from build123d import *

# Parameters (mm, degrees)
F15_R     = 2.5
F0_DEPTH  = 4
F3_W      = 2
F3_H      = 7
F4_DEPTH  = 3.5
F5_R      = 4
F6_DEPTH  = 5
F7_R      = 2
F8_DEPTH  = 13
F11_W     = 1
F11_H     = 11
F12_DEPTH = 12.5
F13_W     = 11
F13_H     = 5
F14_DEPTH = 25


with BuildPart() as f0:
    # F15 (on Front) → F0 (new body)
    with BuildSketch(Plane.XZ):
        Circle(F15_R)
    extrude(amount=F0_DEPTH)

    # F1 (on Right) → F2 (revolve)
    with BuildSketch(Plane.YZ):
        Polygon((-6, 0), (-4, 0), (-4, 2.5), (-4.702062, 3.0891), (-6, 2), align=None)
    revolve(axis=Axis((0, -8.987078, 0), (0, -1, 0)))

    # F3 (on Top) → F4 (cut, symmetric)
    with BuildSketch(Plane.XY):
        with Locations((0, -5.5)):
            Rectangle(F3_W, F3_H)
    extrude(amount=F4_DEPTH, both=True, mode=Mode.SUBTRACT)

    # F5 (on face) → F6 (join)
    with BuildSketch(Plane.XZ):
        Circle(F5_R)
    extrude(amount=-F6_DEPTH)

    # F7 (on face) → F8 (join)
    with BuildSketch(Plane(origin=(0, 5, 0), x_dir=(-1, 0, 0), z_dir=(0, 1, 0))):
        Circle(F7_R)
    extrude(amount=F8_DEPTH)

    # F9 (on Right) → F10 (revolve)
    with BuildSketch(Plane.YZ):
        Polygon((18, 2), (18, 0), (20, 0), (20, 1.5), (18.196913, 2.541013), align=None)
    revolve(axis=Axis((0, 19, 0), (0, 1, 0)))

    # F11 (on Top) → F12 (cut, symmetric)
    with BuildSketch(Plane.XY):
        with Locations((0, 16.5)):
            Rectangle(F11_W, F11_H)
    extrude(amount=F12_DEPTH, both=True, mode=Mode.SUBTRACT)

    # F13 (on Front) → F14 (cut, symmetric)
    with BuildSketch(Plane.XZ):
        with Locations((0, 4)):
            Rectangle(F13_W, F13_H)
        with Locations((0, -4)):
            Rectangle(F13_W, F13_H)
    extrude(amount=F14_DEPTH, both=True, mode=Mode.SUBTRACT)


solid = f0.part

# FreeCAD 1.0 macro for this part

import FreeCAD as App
import Part
import Sketcher
Q = App.Units.Quantity


def add_polygon(sketch, points):
    """Adds a closed chain of lines whose ends are joined by coincident constraints."""
    first, n = sketch.GeometryCount, len(points)
    for a, b in zip(points, points[1:] + points[:1]):
        sketch.addGeometry(Part.LineSegment(App.Vector(*a, 0), App.Vector(*b, 0)), False)
    for i in range(n):
        sketch.addConstraint(Sketcher.Constraint("Coincident", first + i, 2, first + (i + 1) % n, 1))

doc = App.newDocument("Part")
body = doc.addObject("PartDesign::Body", "Body")

sketch1 = body.newObject("Sketcher::SketchObject", "Sketch")
sketch1.AttachmentSupport = (doc.getObject("XZ_Plane"), [""])
sketch1.MapMode = "FlatFace"
sketch1.addGeometry(Part.Circle(App.Vector(0, 0, 0), App.Vector(0, 0, 1), 2.5), False)
sketch1.addConstraint([
    Sketcher.Constraint("Coincident", 0, 3, -1, 1),
    Sketcher.Constraint("Diameter", 0, Q("5 mm")),
])
pad1 = body.newObject("PartDesign::Pad", "Pad")
pad1.Profile = sketch1
pad1.Length = 4

sketch2 = body.newObject("Sketcher::SketchObject", "Sketch001")
sketch2.AttachmentSupport = (doc.getObject("YZ_Plane"), [""])
sketch2.MapMode = "FlatFace"
add_polygon(sketch2, [(-6, 0), (-4, 0), (-4, 2.5), (-4.7, 3.1), (-6, 2)])
sketch2.addConstraint([
    Sketcher.Constraint("Horizontal", 0),
    Sketcher.Constraint("Vertical", 1),
    Sketcher.Constraint("Vertical", 4),
    Sketcher.Constraint("PointOnObject", 0, 2, -1),
    Sketcher.Constraint("Equal", 0, 4),
    Sketcher.Constraint("DistanceX", 0, 1, 0, 2, Q("2 mm")),
    Sketcher.Constraint("Angle", 2, Q("139.999998 deg")),
    Sketcher.Constraint("Angle", 3, Q("-139.999982 deg")),
    Sketcher.Constraint("DistanceY", 1, 1, 1, 2, Q("2.5 mm")),
    Sketcher.Constraint("DistanceX", 0, 2, -1, 1, Q("4 mm")),
])
revolution = body.newObject("PartDesign::Revolution", "Revolution")
revolution.Profile = sketch2
revolution.ReferenceAxis = (sketch2, ["H_Axis"])
revolution.Angle = 360

sketch3 = body.newObject("Sketcher::SketchObject", "Sketch002")
sketch3.AttachmentSupport = (doc.getObject("XY_Plane"), [""])
sketch3.MapMode = "FlatFace"
add_polygon(sketch3, [(-1, -2), (-1, -9), (1, -9), (1, -2)])
sketch3.addConstraint([
    Sketcher.Constraint("Vertical", 0),
    Sketcher.Constraint("Horizontal", 1),
    Sketcher.Constraint("Vertical", 2),
    Sketcher.Constraint("Horizontal", 3),
    Sketcher.Constraint("DistanceX", 1, 1, 1, 2, Q("2 mm")),
    Sketcher.Constraint("DistanceY", 0, 2, 0, 1, Q("7 mm")),
    Sketcher.Constraint("DistanceX", 0, 2, -1, 1, Q("1 mm")),
    Sketcher.Constraint("DistanceY", 0, 2, -1, 1, Q("9 mm")),
])
pocket1 = body.newObject("PartDesign::Pocket", "Pocket")
pocket1.Profile = sketch3
pocket1.Length = 7
pocket1.Midplane = True

sketch4 = body.newObject("Sketcher::SketchObject", "Sketch003")
sketch4.AttachmentSupport = (doc.getObject("XZ_Plane"), [""])
sketch4.MapMode = "FlatFace"
sketch4.addGeometry(Part.Circle(App.Vector(0, 0, 0), App.Vector(0, 0, 1), 4), False)
sketch4.addConstraint([
    Sketcher.Constraint("Coincident", 0, 3, -1, 1),
    Sketcher.Constraint("Diameter", 0, Q("8 mm")),
])
pad2 = body.newObject("PartDesign::Pad", "Pad001")
pad2.Profile = sketch4
pad2.Length = 5
pad2.Reversed = True

sketch5 = body.newObject("Sketcher::SketchObject", "Sketch004")
sketch5.AttachmentSupport = (doc.getObject("XZ_Plane"), [""])
sketch5.MapMode = "FlatFace"
sketch5.AttachmentOffset = App.Placement(App.Vector(0, 0, -5), App.Rotation())
sketch5.addGeometry(Part.Circle(App.Vector(0, 0, 0), App.Vector(0, 0, 1), 2), False)
sketch5.addConstraint([
    Sketcher.Constraint("Coincident", 0, 3, -1, 1),
    Sketcher.Constraint("Diameter", 0, Q("4 mm")),
])
pad3 = body.newObject("PartDesign::Pad", "Pad002")
pad3.Profile = sketch5
pad3.Length = 13
pad3.Reversed = True

sketch6 = body.newObject("Sketcher::SketchObject", "Sketch005")
sketch6.AttachmentSupport = (doc.getObject("YZ_Plane"), [""])
sketch6.MapMode = "FlatFace"
add_polygon(sketch6, [(18, 2), (18, 0), (20, 0), (20, 1.5), (18.2, 2.5)])
sketch6.addConstraint([
    Sketcher.Constraint("Vertical", 0),
    Sketcher.Constraint("Horizontal", 1),
    Sketcher.Constraint("Vertical", 2),
    Sketcher.Constraint("PointOnObject", 0, 2, -1),
    Sketcher.Constraint("Equal", 1, 0),
    Sketcher.Constraint("DistanceX", 1, 1, 1, 2, Q("2 mm")),
    Sketcher.Constraint("Angle", 3, Q("149.999994 deg")),
    Sketcher.Constraint("DistanceY", 2, 1, 2, 2, Q("1.5 mm")),
    Sketcher.Constraint("DistanceX", -1, 1, 0, 2, Q("18 mm")),
    Sketcher.Constraint("Distance", 3, Q("2.082026 mm")),
])
revolution2 = body.newObject("PartDesign::Revolution", "Revolution001")
revolution2.Profile = sketch6
revolution2.ReferenceAxis = (sketch6, ["H_Axis"])
revolution2.Angle = 360

sketch7 = body.newObject("Sketcher::SketchObject", "Sketch006")
sketch7.AttachmentSupport = (doc.getObject("XY_Plane"), [""])
sketch7.MapMode = "FlatFace"
add_polygon(sketch7, [(-0.5, 22), (-0.5, 11), (0.5, 11), (0.5, 22)])
sketch7.addConstraint([
    Sketcher.Constraint("Vertical", 0),
    Sketcher.Constraint("Horizontal", 1),
    Sketcher.Constraint("Vertical", 2),
    Sketcher.Constraint("Horizontal", 3),
    Sketcher.Constraint("DistanceX", 1, 1, 1, 2, Q("1 mm")),
    Sketcher.Constraint("DistanceY", 0, 2, 0, 1, Q("11 mm")),
    Sketcher.Constraint("DistanceY", -1, 1, 0, 2, Q("11 mm")),
    Sketcher.Constraint("DistanceX", 0, 2, -1, 1, Q("0.5 mm")),
])
pocket2 = body.newObject("PartDesign::Pocket", "Pocket001")
pocket2.Profile = sketch7
pocket2.Length = 25
pocket2.Midplane = True

sketch8 = body.newObject("Sketcher::SketchObject", "Sketch007")
sketch8.AttachmentSupport = (doc.getObject("XZ_Plane"), [""])
sketch8.MapMode = "FlatFace"
add_polygon(sketch8, [(-6, 6), (-6, 2), (6, 2), (6, 6)])
add_polygon(sketch8, [(-6, -2), (-6, -6), (6, -6), (6, -2)])
sketch8.addConstraint([
    Sketcher.Constraint("Vertical", 0),
    Sketcher.Constraint("Horizontal", 1),
    Sketcher.Constraint("Vertical", 2),
    Sketcher.Constraint("Horizontal", 3),
    Sketcher.Constraint("Vertical", 4),
    Sketcher.Constraint("Horizontal", 5),
    Sketcher.Constraint("Vertical", 6),
    Sketcher.Constraint("Horizontal", 7),
    Sketcher.Constraint("Symmetric", 2, 2, 4, 2, -1, 1),
    Sketcher.Constraint("Symmetric", 0, 2, 6, 2, -1, 1),
    Sketcher.Constraint("Vertical", 3, 2, 4, 2),
    Sketcher.Constraint("DistanceX", 1, 1, 1, 2, Q("11 mm")),
    Sketcher.Constraint("DistanceY", 0, 2, 0, 1, Q("5 mm")),
    Sketcher.Constraint("DistanceY", 4, 2, 0, 2, Q("8 mm")),
])
pocket3 = body.newObject("PartDesign::Pocket", "Pocket002")
pocket3.Profile = sketch8
pocket3.Length = 50
pocket3.Midplane = True

doc.recompute()
